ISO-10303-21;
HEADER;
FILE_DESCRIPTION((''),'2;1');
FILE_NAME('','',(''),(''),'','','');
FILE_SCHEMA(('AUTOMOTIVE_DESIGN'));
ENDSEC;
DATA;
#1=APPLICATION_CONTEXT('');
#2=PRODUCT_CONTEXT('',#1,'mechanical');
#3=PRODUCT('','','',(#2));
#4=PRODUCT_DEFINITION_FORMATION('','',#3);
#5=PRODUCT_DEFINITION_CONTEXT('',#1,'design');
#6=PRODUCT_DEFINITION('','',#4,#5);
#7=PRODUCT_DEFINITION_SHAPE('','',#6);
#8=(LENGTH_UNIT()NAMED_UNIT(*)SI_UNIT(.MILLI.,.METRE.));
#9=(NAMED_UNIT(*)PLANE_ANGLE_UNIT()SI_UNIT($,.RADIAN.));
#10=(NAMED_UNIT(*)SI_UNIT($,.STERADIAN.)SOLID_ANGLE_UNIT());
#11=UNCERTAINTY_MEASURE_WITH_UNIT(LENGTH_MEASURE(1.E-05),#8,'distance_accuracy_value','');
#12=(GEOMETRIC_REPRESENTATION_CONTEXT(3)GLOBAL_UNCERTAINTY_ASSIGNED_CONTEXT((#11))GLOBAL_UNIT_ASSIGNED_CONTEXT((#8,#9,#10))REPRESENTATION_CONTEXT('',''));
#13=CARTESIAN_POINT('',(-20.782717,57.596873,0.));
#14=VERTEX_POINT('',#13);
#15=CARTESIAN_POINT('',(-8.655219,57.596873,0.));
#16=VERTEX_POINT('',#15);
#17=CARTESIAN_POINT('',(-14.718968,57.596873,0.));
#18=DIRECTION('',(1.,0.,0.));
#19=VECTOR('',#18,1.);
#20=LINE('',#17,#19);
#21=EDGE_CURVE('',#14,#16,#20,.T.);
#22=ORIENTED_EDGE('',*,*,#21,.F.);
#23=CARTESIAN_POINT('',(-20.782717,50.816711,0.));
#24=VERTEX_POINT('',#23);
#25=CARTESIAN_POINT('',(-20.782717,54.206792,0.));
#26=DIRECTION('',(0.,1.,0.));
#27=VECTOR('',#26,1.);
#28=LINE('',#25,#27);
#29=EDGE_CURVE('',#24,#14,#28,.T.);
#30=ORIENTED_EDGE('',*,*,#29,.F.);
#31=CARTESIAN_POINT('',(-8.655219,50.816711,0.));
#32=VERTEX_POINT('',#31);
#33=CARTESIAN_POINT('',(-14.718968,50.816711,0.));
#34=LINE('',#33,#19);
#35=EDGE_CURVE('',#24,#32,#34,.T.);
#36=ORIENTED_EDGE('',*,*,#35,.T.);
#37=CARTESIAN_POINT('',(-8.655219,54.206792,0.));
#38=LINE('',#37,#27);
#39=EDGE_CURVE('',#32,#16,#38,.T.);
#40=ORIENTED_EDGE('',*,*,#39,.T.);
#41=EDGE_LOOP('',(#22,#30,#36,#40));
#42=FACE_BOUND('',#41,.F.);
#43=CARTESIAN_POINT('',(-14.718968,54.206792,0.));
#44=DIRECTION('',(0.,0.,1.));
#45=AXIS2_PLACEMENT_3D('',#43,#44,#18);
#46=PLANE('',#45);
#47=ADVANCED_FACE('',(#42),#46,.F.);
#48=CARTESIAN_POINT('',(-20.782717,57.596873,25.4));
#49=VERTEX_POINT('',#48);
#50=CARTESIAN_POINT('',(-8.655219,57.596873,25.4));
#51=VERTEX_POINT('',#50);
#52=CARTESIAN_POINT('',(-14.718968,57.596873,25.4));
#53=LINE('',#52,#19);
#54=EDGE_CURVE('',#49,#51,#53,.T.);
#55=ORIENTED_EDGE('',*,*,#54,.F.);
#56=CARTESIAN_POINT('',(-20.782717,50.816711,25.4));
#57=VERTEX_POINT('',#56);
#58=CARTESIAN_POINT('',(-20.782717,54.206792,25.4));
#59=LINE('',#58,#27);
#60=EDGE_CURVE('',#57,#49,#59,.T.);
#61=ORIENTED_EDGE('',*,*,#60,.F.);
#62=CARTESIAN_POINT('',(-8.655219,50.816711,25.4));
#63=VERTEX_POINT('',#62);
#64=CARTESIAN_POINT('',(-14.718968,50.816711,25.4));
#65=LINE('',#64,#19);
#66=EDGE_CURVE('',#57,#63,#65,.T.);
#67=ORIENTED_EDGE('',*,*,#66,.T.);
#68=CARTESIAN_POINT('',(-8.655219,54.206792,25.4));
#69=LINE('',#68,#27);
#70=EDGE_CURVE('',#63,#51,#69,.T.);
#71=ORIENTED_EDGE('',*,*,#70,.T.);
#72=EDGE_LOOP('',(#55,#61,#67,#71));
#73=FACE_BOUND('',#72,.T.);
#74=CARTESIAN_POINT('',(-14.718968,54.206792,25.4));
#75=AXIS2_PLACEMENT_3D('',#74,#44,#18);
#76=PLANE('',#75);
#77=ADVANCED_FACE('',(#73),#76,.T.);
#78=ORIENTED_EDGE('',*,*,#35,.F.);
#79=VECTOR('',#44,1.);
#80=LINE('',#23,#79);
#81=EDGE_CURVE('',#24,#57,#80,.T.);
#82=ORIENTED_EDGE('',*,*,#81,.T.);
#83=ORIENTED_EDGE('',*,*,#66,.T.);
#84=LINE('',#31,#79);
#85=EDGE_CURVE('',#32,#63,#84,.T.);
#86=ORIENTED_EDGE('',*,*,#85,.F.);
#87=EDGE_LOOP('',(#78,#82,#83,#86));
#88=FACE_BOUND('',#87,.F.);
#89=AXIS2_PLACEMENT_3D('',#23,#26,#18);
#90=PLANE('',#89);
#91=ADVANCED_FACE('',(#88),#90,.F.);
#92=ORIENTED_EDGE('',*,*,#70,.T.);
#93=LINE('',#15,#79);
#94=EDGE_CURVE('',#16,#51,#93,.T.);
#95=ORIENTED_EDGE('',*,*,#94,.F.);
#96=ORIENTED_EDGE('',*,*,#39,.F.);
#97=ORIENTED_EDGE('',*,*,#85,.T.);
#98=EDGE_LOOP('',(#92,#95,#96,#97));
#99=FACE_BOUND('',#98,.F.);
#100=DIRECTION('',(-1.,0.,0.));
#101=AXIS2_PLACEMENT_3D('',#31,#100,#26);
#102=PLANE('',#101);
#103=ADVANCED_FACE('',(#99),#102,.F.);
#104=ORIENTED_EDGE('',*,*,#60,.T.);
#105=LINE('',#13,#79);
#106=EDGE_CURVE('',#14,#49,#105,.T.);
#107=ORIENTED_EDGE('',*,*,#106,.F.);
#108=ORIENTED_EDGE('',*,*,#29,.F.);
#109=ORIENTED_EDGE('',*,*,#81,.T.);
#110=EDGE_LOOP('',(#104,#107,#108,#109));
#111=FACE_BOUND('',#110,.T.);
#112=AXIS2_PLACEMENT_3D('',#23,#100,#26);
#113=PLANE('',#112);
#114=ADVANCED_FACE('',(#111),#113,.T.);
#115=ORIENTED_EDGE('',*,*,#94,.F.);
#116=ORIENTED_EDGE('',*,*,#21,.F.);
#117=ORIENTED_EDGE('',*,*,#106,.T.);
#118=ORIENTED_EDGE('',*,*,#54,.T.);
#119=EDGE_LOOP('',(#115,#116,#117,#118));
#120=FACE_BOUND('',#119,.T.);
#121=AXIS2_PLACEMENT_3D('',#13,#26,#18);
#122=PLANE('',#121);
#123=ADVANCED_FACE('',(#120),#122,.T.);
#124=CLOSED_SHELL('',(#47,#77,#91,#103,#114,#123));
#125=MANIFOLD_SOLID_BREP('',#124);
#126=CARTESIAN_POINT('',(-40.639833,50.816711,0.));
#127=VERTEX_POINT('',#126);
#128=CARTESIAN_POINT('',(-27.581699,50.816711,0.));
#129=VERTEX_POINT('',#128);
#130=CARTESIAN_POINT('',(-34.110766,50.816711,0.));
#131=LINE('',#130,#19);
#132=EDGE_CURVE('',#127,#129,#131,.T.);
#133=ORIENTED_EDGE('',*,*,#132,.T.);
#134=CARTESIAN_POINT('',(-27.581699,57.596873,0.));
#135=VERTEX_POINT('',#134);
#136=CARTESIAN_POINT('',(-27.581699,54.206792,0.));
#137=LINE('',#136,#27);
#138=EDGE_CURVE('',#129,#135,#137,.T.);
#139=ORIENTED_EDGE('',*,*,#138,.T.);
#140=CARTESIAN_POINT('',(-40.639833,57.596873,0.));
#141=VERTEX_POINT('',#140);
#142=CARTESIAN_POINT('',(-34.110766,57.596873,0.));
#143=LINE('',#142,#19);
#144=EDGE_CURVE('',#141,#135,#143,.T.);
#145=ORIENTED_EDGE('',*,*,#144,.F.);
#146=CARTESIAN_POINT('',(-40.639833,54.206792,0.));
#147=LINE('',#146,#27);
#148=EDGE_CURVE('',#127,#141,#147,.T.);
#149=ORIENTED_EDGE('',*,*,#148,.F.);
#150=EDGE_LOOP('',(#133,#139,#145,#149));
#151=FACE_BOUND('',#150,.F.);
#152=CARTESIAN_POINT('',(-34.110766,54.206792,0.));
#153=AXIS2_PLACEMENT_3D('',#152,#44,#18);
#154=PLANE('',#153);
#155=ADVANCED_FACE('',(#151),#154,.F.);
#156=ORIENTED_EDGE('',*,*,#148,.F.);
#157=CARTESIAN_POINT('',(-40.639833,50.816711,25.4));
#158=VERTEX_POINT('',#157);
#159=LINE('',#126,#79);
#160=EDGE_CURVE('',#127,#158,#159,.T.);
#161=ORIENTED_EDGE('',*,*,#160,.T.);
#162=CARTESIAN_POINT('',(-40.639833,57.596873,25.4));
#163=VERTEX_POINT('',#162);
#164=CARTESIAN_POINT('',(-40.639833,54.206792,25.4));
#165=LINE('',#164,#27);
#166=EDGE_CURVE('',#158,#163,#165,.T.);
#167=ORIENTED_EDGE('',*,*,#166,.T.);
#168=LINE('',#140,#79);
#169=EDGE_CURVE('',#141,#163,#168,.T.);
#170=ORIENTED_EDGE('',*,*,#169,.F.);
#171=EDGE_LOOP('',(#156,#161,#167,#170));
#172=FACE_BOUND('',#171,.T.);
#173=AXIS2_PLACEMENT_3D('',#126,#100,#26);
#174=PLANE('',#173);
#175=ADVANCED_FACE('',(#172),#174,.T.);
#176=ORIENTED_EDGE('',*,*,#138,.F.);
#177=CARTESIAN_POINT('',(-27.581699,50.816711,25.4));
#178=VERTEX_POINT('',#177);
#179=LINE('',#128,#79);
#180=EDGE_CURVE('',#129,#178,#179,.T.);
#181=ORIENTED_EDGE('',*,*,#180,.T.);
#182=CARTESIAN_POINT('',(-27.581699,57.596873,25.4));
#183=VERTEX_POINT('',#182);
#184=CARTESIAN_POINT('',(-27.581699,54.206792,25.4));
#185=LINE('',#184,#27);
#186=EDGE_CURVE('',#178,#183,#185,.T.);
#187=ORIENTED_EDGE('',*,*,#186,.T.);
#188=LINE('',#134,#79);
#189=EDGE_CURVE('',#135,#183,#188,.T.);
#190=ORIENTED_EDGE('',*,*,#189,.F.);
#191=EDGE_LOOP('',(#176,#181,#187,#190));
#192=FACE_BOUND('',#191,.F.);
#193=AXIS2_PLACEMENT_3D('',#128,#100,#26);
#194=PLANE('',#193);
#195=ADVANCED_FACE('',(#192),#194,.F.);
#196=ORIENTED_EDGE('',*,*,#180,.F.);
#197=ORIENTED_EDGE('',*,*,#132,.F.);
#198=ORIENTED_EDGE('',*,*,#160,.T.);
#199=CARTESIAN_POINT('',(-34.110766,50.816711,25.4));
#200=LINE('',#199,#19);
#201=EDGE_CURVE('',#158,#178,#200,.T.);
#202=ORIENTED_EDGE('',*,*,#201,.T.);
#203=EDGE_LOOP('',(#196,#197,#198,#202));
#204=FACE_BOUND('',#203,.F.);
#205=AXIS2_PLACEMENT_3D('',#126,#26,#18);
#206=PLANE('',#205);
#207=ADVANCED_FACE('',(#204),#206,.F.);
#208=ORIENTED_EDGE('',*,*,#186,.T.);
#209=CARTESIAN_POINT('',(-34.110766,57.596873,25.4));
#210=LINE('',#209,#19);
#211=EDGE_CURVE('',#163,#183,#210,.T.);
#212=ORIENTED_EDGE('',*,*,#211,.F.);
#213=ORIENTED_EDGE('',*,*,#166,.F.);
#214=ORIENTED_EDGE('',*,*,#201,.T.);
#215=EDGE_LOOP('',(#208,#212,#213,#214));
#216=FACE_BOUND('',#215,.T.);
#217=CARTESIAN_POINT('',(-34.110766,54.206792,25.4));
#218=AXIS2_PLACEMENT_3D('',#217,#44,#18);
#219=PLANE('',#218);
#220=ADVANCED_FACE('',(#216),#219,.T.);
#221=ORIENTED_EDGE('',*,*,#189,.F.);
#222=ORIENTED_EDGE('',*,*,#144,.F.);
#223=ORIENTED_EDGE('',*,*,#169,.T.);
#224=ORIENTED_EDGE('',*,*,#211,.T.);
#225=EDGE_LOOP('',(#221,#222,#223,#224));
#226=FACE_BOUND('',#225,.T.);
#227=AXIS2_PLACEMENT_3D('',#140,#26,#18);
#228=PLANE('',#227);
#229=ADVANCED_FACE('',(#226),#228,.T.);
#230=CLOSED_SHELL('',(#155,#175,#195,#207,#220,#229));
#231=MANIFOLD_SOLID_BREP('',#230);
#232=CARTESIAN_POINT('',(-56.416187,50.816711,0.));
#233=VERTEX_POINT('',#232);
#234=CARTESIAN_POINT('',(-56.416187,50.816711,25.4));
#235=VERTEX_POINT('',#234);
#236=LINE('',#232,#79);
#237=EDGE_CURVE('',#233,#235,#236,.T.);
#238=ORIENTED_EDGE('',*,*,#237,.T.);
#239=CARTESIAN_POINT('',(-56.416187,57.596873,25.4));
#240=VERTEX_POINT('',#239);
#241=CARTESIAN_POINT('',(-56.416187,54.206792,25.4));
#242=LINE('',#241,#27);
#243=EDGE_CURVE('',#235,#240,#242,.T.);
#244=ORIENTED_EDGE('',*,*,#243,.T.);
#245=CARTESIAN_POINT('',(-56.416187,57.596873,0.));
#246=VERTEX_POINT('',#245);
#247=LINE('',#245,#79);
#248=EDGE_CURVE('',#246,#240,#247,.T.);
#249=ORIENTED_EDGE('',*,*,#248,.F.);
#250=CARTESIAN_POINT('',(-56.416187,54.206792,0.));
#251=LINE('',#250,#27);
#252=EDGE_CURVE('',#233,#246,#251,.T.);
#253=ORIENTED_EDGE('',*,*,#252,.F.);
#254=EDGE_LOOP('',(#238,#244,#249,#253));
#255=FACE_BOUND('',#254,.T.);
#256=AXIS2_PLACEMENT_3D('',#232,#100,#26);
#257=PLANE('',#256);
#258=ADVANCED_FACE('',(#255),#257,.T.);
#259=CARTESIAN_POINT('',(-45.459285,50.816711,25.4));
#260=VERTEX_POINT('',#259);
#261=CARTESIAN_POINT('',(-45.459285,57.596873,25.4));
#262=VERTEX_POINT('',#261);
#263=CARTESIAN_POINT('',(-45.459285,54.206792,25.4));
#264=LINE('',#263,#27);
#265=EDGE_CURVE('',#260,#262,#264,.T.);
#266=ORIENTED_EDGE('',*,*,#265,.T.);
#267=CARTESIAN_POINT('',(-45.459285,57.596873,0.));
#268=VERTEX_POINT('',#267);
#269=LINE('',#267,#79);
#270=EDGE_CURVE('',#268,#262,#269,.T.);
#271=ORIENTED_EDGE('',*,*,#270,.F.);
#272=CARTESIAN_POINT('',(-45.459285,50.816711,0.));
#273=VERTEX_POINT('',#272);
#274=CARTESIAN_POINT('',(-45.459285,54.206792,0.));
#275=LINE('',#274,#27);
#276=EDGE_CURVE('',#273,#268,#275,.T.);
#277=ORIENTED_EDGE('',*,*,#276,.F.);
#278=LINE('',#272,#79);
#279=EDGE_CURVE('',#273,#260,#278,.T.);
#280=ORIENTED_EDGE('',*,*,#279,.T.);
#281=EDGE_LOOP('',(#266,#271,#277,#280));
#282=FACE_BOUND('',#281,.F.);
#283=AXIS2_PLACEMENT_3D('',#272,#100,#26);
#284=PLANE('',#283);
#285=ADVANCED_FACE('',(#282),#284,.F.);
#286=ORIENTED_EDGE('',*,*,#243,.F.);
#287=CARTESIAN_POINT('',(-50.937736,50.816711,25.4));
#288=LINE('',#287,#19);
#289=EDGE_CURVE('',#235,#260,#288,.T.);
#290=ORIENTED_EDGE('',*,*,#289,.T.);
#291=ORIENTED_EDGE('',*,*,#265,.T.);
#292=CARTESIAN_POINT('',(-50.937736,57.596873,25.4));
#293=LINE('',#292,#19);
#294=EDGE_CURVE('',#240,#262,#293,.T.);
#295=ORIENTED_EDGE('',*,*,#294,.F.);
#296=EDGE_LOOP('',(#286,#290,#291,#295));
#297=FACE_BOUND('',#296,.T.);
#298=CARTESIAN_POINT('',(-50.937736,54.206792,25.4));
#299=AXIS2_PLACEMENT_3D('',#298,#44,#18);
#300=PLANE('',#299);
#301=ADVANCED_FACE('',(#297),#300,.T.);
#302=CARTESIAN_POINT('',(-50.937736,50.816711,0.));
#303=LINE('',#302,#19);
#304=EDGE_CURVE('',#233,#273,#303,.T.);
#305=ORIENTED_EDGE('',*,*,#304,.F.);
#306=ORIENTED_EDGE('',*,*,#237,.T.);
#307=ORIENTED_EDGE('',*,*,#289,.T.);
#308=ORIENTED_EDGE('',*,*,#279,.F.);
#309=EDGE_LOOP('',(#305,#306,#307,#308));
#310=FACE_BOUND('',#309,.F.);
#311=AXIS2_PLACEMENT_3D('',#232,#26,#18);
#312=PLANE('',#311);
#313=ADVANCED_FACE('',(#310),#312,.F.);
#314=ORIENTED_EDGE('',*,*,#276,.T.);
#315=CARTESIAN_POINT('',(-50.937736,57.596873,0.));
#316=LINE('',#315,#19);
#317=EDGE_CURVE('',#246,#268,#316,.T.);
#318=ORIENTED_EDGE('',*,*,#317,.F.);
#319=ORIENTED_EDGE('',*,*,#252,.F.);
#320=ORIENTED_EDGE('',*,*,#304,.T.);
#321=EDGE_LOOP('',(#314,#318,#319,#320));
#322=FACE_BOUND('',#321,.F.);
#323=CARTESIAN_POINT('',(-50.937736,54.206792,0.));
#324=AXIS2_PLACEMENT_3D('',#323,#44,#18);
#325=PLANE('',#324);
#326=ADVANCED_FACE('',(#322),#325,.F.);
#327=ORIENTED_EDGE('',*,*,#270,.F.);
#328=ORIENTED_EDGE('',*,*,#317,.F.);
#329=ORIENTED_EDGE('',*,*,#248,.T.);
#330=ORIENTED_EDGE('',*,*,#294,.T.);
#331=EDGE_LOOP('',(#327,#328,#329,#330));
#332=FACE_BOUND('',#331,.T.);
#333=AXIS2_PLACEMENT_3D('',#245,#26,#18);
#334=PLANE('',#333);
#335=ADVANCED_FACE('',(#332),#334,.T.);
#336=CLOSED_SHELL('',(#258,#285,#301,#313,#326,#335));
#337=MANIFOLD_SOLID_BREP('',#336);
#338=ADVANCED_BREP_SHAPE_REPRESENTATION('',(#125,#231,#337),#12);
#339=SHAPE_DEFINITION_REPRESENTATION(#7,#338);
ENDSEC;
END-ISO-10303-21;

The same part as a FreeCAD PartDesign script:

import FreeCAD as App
import Part
import Sketcher
Q = App.Units.Quantity

doc = App.newDocument("Part")
body = doc.addObject("PartDesign::Body", "Body")
body.AllowCompound = True

sketch1 = body.newObject("Sketcher::SketchObject", "Sketch")
sketch1.AttachmentSupport = (doc.getObject("XY_Plane"), [""])
sketch1.MapMode = "FlatFace"
sketch1.addGeometry([
    Part.LineSegment(App.Vector(-56, 58, 0), App.Vector(-56, 51, 0)),
    Part.LineSegment(App.Vector(-56, 51, 0), App.Vector(-45, 51, 0)),
    Part.LineSegment(App.Vector(-45, 51, 0), App.Vector(-45, 58, 0)),
    Part.LineSegment(App.Vector(-45, 58, 0), App.Vector(-56, 58, 0)),
    Part.LineSegment(App.Vector(-41, 58, 0), App.Vector(-41, 51, 0)),
    Part.LineSegment(App.Vector(-41, 51, 0), App.Vector(-28, 51, 0)),
    Part.LineSegment(App.Vector(-28, 51, 0), App.Vector(-28, 58, 0)),
    Part.LineSegment(App.Vector(-28, 58, 0), App.Vector(-41, 58, 0)),
    Part.LineSegment(App.Vector(-21, 58, 0), App.Vector(-21, 51, 0)),
    Part.LineSegment(App.Vector(-21, 51, 0), App.Vector(-9, 51, 0)),
    Part.LineSegment(App.Vector(-9, 51, 0), App.Vector(-9, 58, 0)),
    Part.LineSegment(App.Vector(-9, 58, 0), App.Vector(-21, 58, 0)),
], False)
sketch1.addConstraint([
    Sketcher.Constraint("Coincident", 0, 2, 1, 1),
    Sketcher.Constraint("Coincident", 1, 2, 2, 1),
    Sketcher.Constraint("Coincident", 2, 2, 3, 1),
    Sketcher.Constraint("Coincident", 3, 2, 0, 1),
    Sketcher.Constraint("Coincident", 4, 2, 5, 1),
    Sketcher.Constraint("Coincident", 5, 2, 6, 1),
    Sketcher.Constraint("Coincident", 6, 2, 7, 1),
    Sketcher.Constraint("Coincident", 7, 2, 4, 1),
    Sketcher.Constraint("Coincident", 8, 2, 9, 1),
    Sketcher.Constraint("Coincident", 9, 2, 10, 1),
    Sketcher.Constraint("Coincident", 10, 2, 11, 1),
    Sketcher.Constraint("Coincident", 11, 2, 8, 1),
    Sketcher.Constraint("Vertical", 0),
    Sketcher.Constraint("Horizontal", 1),
    Sketcher.Constraint("Vertical", 2),
    Sketcher.Constraint("Horizontal", 3),
    Sketcher.Constraint("Vertical", 4),
    Sketcher.Constraint("Horizontal", 5),
    Sketcher.Constraint("Vertical", 6),
    Sketcher.Constraint("Horizontal", 7),
    Sketcher.Constraint("Vertical", 8),
    Sketcher.Constraint("Horizontal", 9),
    Sketcher.Constraint("Vertical", 10),
    Sketcher.Constraint("Horizontal", 11),
    Sketcher.Constraint("Horizontal", 1, 2, 4, 2),
    Sketcher.Constraint("Horizontal", 3, 2, 6, 2),
    Sketcher.Constraint("Horizontal", 5, 2, 8, 2),
    Sketcher.Constraint("Horizontal", 7, 2, 10, 2),
    Sketcher.Constraint("DistanceX", 9, 1, 9, 2, Q("12.127498 mm")),
    Sketcher.Constraint("DistanceX", 5, 2, -1, 1, Q("27.581699 mm")),
    Sketcher.Constraint("DistanceX", 1, 1, 1, 2, Q("10.956902 mm")),
    Sketcher.Constraint("DistanceX", 5, 1, 5, 2, Q("13.058134 mm")),
    Sketcher.Constraint("DistanceY", 0, 2, 0, 1, Q("6.780162 mm")),
    Sketcher.Constraint("DistanceY", -1, 1, 0, 2, Q("50.816711 mm")),
    Sketcher.Constraint("DistanceX", 9, 2, -1, 1, Q("8.655219 mm")),
    Sketcher.Constraint("DistanceX", 1, 2, 4, 2, Q("4.819452 mm")),
])
pad1 = body.newObject("PartDesign::Pad", "Pad")
pad1.Profile = sketch1
pad1.Length = Q("1 in")

doc.recompute()
